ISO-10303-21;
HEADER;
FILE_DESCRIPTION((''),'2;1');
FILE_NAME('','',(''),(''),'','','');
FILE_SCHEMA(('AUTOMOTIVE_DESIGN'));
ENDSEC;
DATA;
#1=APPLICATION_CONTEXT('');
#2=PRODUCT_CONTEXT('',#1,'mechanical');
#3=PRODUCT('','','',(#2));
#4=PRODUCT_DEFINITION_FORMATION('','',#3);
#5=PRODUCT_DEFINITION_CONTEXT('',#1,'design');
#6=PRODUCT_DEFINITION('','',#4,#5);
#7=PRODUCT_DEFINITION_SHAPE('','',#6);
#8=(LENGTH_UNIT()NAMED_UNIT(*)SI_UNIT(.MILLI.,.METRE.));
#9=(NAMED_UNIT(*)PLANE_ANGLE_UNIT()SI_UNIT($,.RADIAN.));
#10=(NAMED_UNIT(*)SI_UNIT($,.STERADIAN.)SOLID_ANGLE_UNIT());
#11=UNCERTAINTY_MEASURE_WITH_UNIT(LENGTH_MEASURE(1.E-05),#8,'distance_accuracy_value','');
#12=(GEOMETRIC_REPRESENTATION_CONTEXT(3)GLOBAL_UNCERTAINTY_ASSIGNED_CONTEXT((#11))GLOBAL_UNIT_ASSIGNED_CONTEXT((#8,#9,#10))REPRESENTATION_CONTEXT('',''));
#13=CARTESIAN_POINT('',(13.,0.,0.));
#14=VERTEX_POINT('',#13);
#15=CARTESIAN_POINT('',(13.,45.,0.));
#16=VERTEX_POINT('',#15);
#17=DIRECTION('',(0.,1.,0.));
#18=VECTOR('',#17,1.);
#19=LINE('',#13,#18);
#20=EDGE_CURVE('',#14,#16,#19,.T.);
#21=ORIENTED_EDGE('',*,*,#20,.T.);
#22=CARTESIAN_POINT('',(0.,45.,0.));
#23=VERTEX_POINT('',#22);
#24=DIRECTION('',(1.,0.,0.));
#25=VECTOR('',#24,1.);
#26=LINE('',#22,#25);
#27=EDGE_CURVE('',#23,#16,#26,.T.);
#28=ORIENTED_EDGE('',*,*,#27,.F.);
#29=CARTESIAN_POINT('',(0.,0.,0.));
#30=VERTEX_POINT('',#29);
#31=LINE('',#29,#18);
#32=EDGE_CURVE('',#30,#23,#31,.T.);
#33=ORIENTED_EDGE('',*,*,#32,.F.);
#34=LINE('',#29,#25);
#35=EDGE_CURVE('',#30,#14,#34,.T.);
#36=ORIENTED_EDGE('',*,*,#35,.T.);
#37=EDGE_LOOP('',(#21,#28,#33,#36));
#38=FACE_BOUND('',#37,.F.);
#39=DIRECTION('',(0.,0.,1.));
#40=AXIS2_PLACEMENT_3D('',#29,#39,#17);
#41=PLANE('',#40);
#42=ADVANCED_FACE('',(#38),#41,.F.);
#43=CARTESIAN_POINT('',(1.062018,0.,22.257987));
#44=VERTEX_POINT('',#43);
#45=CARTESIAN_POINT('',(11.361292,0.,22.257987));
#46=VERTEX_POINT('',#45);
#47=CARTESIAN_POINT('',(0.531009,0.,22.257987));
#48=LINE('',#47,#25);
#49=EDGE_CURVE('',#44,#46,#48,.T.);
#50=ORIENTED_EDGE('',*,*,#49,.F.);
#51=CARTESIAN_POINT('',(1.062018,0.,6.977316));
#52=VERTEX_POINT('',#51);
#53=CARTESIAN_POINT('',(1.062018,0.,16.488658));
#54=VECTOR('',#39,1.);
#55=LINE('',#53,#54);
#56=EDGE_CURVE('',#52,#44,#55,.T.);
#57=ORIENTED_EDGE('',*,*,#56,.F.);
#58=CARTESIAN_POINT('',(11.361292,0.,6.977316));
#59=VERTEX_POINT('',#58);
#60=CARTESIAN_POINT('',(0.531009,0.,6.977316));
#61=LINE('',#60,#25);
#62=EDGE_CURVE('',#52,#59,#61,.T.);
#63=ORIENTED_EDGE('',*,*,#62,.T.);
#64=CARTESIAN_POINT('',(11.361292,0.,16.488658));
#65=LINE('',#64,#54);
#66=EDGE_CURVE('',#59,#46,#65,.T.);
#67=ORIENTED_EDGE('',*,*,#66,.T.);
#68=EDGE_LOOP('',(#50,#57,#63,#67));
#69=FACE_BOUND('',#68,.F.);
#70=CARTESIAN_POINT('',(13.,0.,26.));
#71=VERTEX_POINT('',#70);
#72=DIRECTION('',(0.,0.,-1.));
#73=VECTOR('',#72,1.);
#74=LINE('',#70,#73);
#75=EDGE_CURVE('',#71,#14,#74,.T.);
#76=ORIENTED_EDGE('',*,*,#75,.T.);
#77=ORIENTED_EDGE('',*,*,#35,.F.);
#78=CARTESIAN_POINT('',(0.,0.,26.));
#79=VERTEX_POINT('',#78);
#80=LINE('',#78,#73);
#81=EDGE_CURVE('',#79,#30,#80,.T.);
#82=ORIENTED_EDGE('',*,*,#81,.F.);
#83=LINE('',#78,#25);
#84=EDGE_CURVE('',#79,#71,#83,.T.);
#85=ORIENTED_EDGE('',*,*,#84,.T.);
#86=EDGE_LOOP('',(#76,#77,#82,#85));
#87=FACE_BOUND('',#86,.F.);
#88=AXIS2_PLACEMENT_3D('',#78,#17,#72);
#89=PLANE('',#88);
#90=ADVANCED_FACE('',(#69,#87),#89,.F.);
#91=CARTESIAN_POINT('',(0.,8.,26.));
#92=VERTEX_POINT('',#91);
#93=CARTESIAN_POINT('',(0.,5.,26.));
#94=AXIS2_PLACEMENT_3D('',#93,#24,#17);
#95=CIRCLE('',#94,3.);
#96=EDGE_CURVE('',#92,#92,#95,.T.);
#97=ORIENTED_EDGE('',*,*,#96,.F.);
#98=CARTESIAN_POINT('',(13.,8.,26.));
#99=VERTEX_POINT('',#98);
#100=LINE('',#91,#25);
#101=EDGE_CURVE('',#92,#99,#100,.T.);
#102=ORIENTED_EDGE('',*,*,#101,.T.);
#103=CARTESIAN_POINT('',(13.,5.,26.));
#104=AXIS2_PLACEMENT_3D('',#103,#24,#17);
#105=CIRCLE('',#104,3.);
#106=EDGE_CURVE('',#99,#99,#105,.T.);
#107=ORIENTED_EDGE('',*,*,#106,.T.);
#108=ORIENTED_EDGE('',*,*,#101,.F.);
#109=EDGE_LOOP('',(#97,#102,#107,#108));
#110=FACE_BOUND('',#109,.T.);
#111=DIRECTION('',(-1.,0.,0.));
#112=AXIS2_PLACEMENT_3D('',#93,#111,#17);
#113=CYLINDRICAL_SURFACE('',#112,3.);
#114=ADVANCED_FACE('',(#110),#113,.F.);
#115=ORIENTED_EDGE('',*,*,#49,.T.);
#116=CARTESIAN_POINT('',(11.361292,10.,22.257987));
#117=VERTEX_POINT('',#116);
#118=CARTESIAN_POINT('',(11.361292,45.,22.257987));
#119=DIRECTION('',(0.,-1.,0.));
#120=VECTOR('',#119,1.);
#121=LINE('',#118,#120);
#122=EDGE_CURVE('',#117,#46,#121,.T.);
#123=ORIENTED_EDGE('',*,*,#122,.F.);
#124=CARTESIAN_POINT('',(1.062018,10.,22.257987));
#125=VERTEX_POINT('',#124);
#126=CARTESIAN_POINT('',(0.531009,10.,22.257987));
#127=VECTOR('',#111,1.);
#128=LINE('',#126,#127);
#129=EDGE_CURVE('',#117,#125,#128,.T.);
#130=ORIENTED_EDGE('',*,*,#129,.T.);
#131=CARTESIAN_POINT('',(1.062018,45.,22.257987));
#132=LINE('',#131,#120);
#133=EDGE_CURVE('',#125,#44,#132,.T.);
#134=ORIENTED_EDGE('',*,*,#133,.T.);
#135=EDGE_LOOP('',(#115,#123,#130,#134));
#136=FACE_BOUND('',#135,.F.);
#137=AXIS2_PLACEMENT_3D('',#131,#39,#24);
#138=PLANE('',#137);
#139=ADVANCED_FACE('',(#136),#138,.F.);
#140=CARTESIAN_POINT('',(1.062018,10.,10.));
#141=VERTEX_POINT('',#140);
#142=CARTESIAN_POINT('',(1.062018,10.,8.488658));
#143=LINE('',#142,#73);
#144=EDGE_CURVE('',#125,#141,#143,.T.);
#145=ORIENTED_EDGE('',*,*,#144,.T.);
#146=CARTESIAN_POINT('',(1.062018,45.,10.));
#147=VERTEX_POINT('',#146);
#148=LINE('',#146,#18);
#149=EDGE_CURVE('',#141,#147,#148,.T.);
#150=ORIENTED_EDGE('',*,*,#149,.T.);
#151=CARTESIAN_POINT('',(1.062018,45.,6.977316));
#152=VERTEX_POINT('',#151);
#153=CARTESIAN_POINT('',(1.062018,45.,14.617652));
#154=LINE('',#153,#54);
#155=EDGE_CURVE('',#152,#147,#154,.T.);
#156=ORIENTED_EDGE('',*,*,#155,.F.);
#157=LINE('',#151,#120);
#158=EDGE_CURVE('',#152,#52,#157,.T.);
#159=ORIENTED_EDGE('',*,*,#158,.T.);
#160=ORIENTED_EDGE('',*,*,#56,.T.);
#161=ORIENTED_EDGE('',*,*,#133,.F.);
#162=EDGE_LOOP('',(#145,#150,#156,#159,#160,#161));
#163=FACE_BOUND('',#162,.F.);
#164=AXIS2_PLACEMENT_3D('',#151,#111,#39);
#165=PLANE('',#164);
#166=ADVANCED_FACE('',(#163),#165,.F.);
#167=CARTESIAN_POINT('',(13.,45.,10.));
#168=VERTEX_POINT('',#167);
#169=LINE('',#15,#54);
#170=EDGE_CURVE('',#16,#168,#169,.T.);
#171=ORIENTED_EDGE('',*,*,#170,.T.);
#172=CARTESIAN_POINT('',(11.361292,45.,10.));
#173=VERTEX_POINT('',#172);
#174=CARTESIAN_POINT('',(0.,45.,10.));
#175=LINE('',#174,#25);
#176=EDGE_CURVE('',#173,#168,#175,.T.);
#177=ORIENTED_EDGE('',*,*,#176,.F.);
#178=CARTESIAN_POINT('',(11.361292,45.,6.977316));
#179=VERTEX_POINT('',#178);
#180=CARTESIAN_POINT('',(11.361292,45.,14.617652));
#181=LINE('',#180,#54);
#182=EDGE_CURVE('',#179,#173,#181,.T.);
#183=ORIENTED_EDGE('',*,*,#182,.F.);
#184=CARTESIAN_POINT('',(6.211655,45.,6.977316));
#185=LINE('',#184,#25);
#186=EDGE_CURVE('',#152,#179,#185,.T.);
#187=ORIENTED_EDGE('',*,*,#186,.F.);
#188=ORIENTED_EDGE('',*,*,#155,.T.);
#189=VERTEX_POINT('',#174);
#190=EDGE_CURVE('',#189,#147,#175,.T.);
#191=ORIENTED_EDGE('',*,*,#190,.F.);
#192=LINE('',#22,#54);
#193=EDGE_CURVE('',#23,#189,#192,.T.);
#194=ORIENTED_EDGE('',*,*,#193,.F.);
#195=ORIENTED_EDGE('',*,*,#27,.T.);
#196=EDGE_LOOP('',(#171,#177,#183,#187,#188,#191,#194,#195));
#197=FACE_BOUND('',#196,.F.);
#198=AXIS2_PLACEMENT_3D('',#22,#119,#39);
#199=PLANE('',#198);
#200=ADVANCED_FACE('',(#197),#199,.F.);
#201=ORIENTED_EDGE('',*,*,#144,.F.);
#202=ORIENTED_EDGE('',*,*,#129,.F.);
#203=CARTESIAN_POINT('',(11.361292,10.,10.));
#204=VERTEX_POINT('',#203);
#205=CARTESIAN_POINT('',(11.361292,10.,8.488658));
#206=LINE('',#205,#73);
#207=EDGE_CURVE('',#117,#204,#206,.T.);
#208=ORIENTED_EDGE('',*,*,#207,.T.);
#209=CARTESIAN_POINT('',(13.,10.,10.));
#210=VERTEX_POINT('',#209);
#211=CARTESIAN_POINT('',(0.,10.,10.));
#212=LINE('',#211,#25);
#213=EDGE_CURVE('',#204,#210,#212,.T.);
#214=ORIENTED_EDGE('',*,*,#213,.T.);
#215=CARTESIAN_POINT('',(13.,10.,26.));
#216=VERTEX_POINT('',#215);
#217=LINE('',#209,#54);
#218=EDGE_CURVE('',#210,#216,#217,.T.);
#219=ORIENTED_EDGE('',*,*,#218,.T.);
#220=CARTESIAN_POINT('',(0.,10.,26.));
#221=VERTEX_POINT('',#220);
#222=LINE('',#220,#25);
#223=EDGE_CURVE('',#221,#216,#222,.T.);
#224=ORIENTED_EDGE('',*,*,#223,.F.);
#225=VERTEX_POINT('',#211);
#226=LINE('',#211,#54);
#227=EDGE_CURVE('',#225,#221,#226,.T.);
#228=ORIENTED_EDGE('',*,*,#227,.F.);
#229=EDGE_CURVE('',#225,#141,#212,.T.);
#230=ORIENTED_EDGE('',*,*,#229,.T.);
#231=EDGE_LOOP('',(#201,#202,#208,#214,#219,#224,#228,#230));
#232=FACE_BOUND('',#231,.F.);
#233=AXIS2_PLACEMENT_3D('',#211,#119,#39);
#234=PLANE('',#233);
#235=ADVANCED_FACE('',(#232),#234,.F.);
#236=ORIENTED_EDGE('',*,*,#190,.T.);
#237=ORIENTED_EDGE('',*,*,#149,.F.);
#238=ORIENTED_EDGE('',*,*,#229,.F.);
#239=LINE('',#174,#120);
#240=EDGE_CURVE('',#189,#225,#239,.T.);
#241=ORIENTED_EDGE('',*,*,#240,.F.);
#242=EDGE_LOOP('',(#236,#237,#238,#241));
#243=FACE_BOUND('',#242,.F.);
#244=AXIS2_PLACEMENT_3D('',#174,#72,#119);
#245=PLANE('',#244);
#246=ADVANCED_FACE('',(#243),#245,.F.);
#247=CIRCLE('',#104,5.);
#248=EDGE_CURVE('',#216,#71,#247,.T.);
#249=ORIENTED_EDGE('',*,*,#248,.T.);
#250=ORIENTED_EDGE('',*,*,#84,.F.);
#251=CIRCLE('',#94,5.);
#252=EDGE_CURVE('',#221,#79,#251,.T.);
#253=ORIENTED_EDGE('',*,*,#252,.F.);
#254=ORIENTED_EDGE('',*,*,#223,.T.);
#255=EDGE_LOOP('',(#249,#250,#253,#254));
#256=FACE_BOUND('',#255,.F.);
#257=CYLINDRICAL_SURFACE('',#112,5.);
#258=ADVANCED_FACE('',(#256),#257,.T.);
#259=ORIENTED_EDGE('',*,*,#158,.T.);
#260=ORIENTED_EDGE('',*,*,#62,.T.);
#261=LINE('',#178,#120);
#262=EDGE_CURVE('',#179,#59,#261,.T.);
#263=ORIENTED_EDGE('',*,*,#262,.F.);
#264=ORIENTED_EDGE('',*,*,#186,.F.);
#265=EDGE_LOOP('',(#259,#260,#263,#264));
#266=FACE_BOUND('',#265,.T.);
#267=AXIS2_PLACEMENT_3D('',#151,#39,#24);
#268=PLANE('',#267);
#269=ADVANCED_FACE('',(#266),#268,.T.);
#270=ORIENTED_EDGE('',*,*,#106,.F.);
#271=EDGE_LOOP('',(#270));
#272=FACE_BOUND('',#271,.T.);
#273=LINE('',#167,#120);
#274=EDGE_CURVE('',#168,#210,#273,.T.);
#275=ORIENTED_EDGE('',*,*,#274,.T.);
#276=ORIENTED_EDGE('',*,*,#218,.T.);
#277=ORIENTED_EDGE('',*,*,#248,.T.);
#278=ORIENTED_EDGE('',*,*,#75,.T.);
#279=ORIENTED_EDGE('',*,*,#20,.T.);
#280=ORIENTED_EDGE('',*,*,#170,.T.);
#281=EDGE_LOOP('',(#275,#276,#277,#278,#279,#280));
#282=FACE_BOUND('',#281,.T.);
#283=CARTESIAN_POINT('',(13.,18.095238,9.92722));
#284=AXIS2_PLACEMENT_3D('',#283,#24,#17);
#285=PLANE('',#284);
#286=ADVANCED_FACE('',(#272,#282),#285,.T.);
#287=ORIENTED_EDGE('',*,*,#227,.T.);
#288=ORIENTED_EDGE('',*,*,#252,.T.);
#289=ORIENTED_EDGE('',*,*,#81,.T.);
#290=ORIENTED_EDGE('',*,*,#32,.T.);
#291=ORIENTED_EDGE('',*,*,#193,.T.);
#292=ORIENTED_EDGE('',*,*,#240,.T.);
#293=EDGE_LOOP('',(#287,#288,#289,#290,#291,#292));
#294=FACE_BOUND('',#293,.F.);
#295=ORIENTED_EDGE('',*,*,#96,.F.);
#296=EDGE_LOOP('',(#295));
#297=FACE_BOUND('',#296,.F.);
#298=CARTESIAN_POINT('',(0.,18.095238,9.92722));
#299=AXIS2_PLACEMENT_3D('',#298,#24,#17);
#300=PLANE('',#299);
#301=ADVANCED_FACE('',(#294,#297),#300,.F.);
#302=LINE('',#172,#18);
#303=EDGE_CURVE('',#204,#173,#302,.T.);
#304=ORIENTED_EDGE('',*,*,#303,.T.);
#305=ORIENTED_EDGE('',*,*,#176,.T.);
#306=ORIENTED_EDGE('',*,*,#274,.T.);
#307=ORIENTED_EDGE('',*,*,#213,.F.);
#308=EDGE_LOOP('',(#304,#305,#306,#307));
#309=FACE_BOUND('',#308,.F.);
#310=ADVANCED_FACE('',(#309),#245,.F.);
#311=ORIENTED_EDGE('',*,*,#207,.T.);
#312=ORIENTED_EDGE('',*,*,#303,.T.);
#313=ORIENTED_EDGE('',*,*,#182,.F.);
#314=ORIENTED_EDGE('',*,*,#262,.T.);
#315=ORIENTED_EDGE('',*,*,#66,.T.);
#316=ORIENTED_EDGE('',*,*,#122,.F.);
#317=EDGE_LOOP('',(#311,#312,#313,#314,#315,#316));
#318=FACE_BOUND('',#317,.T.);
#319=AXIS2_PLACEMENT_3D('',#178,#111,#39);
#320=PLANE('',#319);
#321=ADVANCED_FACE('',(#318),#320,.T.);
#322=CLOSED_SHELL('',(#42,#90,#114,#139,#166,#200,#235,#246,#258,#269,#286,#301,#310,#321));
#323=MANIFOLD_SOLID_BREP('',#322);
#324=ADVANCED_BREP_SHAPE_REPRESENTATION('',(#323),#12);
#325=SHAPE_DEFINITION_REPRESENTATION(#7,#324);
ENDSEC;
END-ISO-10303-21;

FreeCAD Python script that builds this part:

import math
import FreeCAD as App
import Part
import Sketcher

doc = App.newDocument("Part")
body = doc.addObject("PartDesign::Body", "Body")

# Sketch on YZ plane
sketch1 = body.newObject("Sketcher::SketchObject", "Sketch")
sketch1.AttachmentSupport = (doc.getObject("YZ_Plane"), [""])
sketch1.MapMode = "FlatFace"
sketch1.addGeometry([
    Part.LineSegment(App.Vector(0, 0, 0), App.Vector(45, 0, 0)),  # 0
    Part.LineSegment(App.Vector(45, 0, 0), App.Vector(45, 10, 0)),  # 1
    Part.LineSegment(App.Vector(45, 10, 0), App.Vector(10, 10, 0)),  # 2
    Part.LineSegment(App.Vector(10, 10, 0), App.Vector(10, 26, 0)),  # 3
    Part.ArcOfCircle(Part.Circle(App.Vector(5, 26, 0), App.Vector(0, 0, 1), 5), math.radians(0), math.radians(180)),  # 4
    Part.LineSegment(App.Vector(0, 26, 0), App.Vector(0, 0, 0)),  # 5
    Part.Circle(App.Vector(5, 26, 0), App.Vector(0, 0, 1), 3),  # 6
], False)
sketch1.addConstraint([
    Sketcher.Constraint("Coincident", 0, 2, 1, 1),
    Sketcher.Constraint("Coincident", 1, 2, 2, 1),
    Sketcher.Constraint("Coincident", 2, 2, 3, 1),
    Sketcher.Constraint("Tangent", 3, 2, 4, 1),
    Sketcher.Constraint("Tangent", 4, 2, 5, 1),
    Sketcher.Constraint("Coincident", 5, 2, 0, 1),
    Sketcher.Constraint("Horizontal", 0),
    Sketcher.Constraint("Vertical", 1),
    Sketcher.Constraint("Horizontal", 2),
    Sketcher.Constraint("Vertical", 3),
    Sketcher.Constraint("Vertical", 5),
    Sketcher.Constraint("Coincident", 5, 2, -1, 1),
    Sketcher.Constraint("Coincident", 6, 3, 4, 3),
    Sketcher.Constraint("Diameter", 6, 6.0),
    Sketcher.Constraint("Radius", 4, 5.0),
    Sketcher.Constraint("DistanceX", 0, 1, 0, 2, 45.0),
    Sketcher.Constraint("DistanceY", 1, 1, 1, 2, 10.0),
    Sketcher.Constraint("DistanceY", 3, 1, 3, 2, 16.0),
])
pad1 = body.newObject("PartDesign::Pad", "Pad")
pad1.Profile = sketch1
pad1.Length = 13

# Sketch on XZ plane
sketch2 = body.newObject("Sketcher::SketchObject", "Sketch001")
sketch2.AttachmentSupport = (doc.getObject("XZ_Plane"), [""])
sketch2.MapMode = "FlatFace"
sketch2.AttachmentOffset = App.Placement(App.Vector(0, 0, -45), App.Rotation())
sketch2.addGeometry([
    Part.LineSegment(App.Vector(11.361292, 6.977316, 0), App.Vector(1.062018, 6.977316, 0)),
    Part.LineSegment(App.Vector(1.062018, 6.977316, 0), App.Vector(1.062018, 22.257987, 0)),
    Part.LineSegment(App.Vector(1.062018, 22.257987, 0), App.Vector(11.361292, 22.257987, 0)),
    Part.LineSegment(App.Vector(11.361292, 22.257987, 0), App.Vector(11.361292, 6.977316, 0)),
], False)
sketch2.addConstraint([
    Sketcher.Constraint("Coincident", 0, 2, 1, 1),
    Sketcher.Constraint("Coincident", 1, 2, 2, 1),
    Sketcher.Constraint("Coincident", 2, 2, 3, 1),
    Sketcher.Constraint("Coincident", 3, 2, 0, 1),
    Sketcher.Constraint("Horizontal", 0),
    Sketcher.Constraint("Vertical", 1),
    Sketcher.Constraint("Horizontal", 2),
    Sketcher.Constraint("Vertical", 3),
    Sketcher.Constraint("DistanceY", 1, 1, 1, 2, 15.280671),
    Sketcher.Constraint("DistanceX", 0, 2, 0, 1, 10.299273),
    Sketcher.Constraint("DistanceX", -1, 1, 0, 2, 1.062018),
    Sketcher.Constraint("DistanceY", -1, 1, 0, 2, 6.977316),
])
pocket1 = body.newObject("PartDesign::Pocket", "Pocket")
pocket1.Profile = sketch2
pocket1.Length = 46
pocket1.Reversed = True

doc.recompute()
